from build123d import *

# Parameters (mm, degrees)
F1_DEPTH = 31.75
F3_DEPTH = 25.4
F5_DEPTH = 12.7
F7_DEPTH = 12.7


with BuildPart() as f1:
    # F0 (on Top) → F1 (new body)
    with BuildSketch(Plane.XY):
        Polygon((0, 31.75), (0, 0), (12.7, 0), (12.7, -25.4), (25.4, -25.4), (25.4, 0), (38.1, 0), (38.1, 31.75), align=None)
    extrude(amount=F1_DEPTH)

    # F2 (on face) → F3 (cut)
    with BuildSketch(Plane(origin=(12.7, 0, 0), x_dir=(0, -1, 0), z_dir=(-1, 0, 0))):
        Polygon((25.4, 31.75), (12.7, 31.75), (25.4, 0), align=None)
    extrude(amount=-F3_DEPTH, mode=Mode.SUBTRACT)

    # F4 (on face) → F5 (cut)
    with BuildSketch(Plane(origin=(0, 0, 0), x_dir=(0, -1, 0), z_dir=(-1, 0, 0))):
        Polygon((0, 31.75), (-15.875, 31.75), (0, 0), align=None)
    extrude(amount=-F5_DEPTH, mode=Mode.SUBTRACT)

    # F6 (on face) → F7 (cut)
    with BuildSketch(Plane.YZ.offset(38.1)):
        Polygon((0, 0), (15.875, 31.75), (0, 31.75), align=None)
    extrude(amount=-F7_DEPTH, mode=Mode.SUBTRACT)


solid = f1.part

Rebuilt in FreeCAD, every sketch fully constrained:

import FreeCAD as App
import Part
import Sketcher

V = App.Vector
Q = App.Units.Quantity


def add_polygon(sketch, points):
    """Adds a closed chain of lines whose ends are joined by coincident constraints."""
    first, n = sketch.GeometryCount, len(points)
    for a, b in zip(points, points[1:] + points[:1]):
        sketch.addGeometry(Part.LineSegment(App.Vector(*a, 0), App.Vector(*b, 0)), False)
    for i in range(n):
        sketch.addConstraint(Sketcher.Constraint("Coincident", first + i, 2, first + (i + 1) % n, 1))

doc = App.newDocument("Part")
body = doc.addObject("PartDesign::Body", "Body")

# Sketch on XY plane
sketch1 = doc.addObject("Sketcher::SketchObject", "Sketch")
body.addObject(sketch1)
sketch1.AttachmentSupport = (doc.XY_Plane, [""])
sketch1.MapMode = "FlatFace"
add_polygon(sketch1, [(0, 32), (0, 0), (13, 0), (13, -25), (25, -25), (25, 0), (38, 0), (38, 32)])  # lines 0-7
sketch1.addConstraint([
    Sketcher.Constraint("Vertical", 0),
    Sketcher.Constraint("Horizontal", 1),
    Sketcher.Constraint("Vertical", 2),
    Sketcher.Constraint("Horizontal", 3),
    Sketcher.Constraint("Vertical", 4),
    Sketcher.Constraint("Horizontal", 5),
    Sketcher.Constraint("Vertical", 6),
    Sketcher.Constraint("Horizontal", 7),
    Sketcher.Constraint("Coincident", 0, 2, -1, 1),
    Sketcher.Constraint("PointOnObject", 4, 2, -1),
    Sketcher.Constraint("Equal", 1, 3),
    Sketcher.Constraint("Equal", 3, 5),
    Sketcher.Constraint("DistanceY", 2, 2, 2, 1, Q("1 in")),
    Sketcher.Constraint("DistanceX", 1, 1, 1, 2, Q("0.5 in")),
    Sketcher.Constraint("DistanceY", 0, 2, 0, 1, Q("1.25 in")),
])
pad1 = doc.addObject("PartDesign::Pad", "Pad")
body.addObject(pad1)
pad1.Profile = sketch1
pad1.Length = Q("1.25 in")

# Sketch on YZ plane
sketch2 = doc.addObject("Sketcher::SketchObject", "Sketch001")
body.addObject(sketch2)
sketch2.AttachmentSupport = (doc.YZ_Plane, [""])
sketch2.MapMode = "FlatFace"
sketch2.AttachmentOffset = App.Placement(V(0, 0, 0.5 * 25.4), App.Rotation())
add_polygon(sketch2, [(-25, 32), (-13, 32), (-25, 0)])  # lines 0-2
sketch2.addConstraint([
    Sketcher.Constraint("Horizontal", 0),
    Sketcher.Constraint("Vertical", 2),
    Sketcher.Constraint("PointOnObject", 1, 2, -1),
    Sketcher.Constraint("DistanceX", 0, 1, 0, 2, Q("0.5 in")),
    Sketcher.Constraint("DistanceX", 1, 2, -1, 1, Q("1 in")),
    Sketcher.Constraint("DistanceY", 2, 1, 2, 2, Q("1.25 in")),
])
pocket1 = doc.addObject("PartDesign::Pocket", "Pocket")
body.addObject(pocket1)
pocket1.Profile = sketch2
pocket1.Length = Q("1 in")
pocket1.Reversed = True

# Sketch on YZ plane
sketch3 = doc.addObject("Sketcher::SketchObject", "Sketch002")
body.addObject(sketch3)
sketch3.AttachmentSupport = (doc.YZ_Plane, [""])
sketch3.MapMode = "FlatFace"
add_polygon(sketch3, [(0, 32), (16, 32), (0, 0)])  # lines 0-2
sketch3.addConstraint([
    Sketcher.Constraint("Horizontal", 0),
    Sketcher.Constraint("Vertical", 2),
    Sketcher.Constraint("Coincident", 1, 2, -1, 1),
    Sketcher.Constraint("DistanceY", 2, 1, 2, 2, Q("1.25 in")),
    Sketcher.Constraint("DistanceX", 0, 1, 0, 2, Q("0.625 in")),
])
pocket2 = doc.addObject("PartDesign::Pocket", "Pocket001")
body.addObject(pocket2)
pocket2.Profile = sketch3
pocket2.Length = Q("0.5 in")
pocket2.Reversed = True

# Sketch on YZ plane
sketch4 = doc.addObject("Sketcher::SketchObject", "Sketch003")
body.addObject(sketch4)
sketch4.AttachmentSupport = (doc.YZ_Plane, [""])
sketch4.MapMode = "FlatFace"
sketch4.AttachmentOffset = App.Placement(V(0, 0, 1.5 * 25.4), App.Rotation())
add_polygon(sketch4, [(0, 0), (16, 32), (0, 32)])  # lines 0-2
sketch4.addConstraint([
    Sketcher.Constraint("Horizontal", 1),
    Sketcher.Constraint("Vertical", 2),
    Sketcher.Constraint("Coincident", 2, 2, -1, 1),
    Sketcher.Constraint("DistanceY", 2, 2, 2, 1, Q("1.25 in")),
    Sketcher.Constraint("DistanceX", 1, 2, 1, 1, Q("0.625 in")),
])
pocket3 = doc.addObject("PartDesign::Pocket", "Pocket002")
body.addObject(pocket3)
pocket3.Profile = sketch4
pocket3.Length = Q("0.5 in")

doc.recompute()
